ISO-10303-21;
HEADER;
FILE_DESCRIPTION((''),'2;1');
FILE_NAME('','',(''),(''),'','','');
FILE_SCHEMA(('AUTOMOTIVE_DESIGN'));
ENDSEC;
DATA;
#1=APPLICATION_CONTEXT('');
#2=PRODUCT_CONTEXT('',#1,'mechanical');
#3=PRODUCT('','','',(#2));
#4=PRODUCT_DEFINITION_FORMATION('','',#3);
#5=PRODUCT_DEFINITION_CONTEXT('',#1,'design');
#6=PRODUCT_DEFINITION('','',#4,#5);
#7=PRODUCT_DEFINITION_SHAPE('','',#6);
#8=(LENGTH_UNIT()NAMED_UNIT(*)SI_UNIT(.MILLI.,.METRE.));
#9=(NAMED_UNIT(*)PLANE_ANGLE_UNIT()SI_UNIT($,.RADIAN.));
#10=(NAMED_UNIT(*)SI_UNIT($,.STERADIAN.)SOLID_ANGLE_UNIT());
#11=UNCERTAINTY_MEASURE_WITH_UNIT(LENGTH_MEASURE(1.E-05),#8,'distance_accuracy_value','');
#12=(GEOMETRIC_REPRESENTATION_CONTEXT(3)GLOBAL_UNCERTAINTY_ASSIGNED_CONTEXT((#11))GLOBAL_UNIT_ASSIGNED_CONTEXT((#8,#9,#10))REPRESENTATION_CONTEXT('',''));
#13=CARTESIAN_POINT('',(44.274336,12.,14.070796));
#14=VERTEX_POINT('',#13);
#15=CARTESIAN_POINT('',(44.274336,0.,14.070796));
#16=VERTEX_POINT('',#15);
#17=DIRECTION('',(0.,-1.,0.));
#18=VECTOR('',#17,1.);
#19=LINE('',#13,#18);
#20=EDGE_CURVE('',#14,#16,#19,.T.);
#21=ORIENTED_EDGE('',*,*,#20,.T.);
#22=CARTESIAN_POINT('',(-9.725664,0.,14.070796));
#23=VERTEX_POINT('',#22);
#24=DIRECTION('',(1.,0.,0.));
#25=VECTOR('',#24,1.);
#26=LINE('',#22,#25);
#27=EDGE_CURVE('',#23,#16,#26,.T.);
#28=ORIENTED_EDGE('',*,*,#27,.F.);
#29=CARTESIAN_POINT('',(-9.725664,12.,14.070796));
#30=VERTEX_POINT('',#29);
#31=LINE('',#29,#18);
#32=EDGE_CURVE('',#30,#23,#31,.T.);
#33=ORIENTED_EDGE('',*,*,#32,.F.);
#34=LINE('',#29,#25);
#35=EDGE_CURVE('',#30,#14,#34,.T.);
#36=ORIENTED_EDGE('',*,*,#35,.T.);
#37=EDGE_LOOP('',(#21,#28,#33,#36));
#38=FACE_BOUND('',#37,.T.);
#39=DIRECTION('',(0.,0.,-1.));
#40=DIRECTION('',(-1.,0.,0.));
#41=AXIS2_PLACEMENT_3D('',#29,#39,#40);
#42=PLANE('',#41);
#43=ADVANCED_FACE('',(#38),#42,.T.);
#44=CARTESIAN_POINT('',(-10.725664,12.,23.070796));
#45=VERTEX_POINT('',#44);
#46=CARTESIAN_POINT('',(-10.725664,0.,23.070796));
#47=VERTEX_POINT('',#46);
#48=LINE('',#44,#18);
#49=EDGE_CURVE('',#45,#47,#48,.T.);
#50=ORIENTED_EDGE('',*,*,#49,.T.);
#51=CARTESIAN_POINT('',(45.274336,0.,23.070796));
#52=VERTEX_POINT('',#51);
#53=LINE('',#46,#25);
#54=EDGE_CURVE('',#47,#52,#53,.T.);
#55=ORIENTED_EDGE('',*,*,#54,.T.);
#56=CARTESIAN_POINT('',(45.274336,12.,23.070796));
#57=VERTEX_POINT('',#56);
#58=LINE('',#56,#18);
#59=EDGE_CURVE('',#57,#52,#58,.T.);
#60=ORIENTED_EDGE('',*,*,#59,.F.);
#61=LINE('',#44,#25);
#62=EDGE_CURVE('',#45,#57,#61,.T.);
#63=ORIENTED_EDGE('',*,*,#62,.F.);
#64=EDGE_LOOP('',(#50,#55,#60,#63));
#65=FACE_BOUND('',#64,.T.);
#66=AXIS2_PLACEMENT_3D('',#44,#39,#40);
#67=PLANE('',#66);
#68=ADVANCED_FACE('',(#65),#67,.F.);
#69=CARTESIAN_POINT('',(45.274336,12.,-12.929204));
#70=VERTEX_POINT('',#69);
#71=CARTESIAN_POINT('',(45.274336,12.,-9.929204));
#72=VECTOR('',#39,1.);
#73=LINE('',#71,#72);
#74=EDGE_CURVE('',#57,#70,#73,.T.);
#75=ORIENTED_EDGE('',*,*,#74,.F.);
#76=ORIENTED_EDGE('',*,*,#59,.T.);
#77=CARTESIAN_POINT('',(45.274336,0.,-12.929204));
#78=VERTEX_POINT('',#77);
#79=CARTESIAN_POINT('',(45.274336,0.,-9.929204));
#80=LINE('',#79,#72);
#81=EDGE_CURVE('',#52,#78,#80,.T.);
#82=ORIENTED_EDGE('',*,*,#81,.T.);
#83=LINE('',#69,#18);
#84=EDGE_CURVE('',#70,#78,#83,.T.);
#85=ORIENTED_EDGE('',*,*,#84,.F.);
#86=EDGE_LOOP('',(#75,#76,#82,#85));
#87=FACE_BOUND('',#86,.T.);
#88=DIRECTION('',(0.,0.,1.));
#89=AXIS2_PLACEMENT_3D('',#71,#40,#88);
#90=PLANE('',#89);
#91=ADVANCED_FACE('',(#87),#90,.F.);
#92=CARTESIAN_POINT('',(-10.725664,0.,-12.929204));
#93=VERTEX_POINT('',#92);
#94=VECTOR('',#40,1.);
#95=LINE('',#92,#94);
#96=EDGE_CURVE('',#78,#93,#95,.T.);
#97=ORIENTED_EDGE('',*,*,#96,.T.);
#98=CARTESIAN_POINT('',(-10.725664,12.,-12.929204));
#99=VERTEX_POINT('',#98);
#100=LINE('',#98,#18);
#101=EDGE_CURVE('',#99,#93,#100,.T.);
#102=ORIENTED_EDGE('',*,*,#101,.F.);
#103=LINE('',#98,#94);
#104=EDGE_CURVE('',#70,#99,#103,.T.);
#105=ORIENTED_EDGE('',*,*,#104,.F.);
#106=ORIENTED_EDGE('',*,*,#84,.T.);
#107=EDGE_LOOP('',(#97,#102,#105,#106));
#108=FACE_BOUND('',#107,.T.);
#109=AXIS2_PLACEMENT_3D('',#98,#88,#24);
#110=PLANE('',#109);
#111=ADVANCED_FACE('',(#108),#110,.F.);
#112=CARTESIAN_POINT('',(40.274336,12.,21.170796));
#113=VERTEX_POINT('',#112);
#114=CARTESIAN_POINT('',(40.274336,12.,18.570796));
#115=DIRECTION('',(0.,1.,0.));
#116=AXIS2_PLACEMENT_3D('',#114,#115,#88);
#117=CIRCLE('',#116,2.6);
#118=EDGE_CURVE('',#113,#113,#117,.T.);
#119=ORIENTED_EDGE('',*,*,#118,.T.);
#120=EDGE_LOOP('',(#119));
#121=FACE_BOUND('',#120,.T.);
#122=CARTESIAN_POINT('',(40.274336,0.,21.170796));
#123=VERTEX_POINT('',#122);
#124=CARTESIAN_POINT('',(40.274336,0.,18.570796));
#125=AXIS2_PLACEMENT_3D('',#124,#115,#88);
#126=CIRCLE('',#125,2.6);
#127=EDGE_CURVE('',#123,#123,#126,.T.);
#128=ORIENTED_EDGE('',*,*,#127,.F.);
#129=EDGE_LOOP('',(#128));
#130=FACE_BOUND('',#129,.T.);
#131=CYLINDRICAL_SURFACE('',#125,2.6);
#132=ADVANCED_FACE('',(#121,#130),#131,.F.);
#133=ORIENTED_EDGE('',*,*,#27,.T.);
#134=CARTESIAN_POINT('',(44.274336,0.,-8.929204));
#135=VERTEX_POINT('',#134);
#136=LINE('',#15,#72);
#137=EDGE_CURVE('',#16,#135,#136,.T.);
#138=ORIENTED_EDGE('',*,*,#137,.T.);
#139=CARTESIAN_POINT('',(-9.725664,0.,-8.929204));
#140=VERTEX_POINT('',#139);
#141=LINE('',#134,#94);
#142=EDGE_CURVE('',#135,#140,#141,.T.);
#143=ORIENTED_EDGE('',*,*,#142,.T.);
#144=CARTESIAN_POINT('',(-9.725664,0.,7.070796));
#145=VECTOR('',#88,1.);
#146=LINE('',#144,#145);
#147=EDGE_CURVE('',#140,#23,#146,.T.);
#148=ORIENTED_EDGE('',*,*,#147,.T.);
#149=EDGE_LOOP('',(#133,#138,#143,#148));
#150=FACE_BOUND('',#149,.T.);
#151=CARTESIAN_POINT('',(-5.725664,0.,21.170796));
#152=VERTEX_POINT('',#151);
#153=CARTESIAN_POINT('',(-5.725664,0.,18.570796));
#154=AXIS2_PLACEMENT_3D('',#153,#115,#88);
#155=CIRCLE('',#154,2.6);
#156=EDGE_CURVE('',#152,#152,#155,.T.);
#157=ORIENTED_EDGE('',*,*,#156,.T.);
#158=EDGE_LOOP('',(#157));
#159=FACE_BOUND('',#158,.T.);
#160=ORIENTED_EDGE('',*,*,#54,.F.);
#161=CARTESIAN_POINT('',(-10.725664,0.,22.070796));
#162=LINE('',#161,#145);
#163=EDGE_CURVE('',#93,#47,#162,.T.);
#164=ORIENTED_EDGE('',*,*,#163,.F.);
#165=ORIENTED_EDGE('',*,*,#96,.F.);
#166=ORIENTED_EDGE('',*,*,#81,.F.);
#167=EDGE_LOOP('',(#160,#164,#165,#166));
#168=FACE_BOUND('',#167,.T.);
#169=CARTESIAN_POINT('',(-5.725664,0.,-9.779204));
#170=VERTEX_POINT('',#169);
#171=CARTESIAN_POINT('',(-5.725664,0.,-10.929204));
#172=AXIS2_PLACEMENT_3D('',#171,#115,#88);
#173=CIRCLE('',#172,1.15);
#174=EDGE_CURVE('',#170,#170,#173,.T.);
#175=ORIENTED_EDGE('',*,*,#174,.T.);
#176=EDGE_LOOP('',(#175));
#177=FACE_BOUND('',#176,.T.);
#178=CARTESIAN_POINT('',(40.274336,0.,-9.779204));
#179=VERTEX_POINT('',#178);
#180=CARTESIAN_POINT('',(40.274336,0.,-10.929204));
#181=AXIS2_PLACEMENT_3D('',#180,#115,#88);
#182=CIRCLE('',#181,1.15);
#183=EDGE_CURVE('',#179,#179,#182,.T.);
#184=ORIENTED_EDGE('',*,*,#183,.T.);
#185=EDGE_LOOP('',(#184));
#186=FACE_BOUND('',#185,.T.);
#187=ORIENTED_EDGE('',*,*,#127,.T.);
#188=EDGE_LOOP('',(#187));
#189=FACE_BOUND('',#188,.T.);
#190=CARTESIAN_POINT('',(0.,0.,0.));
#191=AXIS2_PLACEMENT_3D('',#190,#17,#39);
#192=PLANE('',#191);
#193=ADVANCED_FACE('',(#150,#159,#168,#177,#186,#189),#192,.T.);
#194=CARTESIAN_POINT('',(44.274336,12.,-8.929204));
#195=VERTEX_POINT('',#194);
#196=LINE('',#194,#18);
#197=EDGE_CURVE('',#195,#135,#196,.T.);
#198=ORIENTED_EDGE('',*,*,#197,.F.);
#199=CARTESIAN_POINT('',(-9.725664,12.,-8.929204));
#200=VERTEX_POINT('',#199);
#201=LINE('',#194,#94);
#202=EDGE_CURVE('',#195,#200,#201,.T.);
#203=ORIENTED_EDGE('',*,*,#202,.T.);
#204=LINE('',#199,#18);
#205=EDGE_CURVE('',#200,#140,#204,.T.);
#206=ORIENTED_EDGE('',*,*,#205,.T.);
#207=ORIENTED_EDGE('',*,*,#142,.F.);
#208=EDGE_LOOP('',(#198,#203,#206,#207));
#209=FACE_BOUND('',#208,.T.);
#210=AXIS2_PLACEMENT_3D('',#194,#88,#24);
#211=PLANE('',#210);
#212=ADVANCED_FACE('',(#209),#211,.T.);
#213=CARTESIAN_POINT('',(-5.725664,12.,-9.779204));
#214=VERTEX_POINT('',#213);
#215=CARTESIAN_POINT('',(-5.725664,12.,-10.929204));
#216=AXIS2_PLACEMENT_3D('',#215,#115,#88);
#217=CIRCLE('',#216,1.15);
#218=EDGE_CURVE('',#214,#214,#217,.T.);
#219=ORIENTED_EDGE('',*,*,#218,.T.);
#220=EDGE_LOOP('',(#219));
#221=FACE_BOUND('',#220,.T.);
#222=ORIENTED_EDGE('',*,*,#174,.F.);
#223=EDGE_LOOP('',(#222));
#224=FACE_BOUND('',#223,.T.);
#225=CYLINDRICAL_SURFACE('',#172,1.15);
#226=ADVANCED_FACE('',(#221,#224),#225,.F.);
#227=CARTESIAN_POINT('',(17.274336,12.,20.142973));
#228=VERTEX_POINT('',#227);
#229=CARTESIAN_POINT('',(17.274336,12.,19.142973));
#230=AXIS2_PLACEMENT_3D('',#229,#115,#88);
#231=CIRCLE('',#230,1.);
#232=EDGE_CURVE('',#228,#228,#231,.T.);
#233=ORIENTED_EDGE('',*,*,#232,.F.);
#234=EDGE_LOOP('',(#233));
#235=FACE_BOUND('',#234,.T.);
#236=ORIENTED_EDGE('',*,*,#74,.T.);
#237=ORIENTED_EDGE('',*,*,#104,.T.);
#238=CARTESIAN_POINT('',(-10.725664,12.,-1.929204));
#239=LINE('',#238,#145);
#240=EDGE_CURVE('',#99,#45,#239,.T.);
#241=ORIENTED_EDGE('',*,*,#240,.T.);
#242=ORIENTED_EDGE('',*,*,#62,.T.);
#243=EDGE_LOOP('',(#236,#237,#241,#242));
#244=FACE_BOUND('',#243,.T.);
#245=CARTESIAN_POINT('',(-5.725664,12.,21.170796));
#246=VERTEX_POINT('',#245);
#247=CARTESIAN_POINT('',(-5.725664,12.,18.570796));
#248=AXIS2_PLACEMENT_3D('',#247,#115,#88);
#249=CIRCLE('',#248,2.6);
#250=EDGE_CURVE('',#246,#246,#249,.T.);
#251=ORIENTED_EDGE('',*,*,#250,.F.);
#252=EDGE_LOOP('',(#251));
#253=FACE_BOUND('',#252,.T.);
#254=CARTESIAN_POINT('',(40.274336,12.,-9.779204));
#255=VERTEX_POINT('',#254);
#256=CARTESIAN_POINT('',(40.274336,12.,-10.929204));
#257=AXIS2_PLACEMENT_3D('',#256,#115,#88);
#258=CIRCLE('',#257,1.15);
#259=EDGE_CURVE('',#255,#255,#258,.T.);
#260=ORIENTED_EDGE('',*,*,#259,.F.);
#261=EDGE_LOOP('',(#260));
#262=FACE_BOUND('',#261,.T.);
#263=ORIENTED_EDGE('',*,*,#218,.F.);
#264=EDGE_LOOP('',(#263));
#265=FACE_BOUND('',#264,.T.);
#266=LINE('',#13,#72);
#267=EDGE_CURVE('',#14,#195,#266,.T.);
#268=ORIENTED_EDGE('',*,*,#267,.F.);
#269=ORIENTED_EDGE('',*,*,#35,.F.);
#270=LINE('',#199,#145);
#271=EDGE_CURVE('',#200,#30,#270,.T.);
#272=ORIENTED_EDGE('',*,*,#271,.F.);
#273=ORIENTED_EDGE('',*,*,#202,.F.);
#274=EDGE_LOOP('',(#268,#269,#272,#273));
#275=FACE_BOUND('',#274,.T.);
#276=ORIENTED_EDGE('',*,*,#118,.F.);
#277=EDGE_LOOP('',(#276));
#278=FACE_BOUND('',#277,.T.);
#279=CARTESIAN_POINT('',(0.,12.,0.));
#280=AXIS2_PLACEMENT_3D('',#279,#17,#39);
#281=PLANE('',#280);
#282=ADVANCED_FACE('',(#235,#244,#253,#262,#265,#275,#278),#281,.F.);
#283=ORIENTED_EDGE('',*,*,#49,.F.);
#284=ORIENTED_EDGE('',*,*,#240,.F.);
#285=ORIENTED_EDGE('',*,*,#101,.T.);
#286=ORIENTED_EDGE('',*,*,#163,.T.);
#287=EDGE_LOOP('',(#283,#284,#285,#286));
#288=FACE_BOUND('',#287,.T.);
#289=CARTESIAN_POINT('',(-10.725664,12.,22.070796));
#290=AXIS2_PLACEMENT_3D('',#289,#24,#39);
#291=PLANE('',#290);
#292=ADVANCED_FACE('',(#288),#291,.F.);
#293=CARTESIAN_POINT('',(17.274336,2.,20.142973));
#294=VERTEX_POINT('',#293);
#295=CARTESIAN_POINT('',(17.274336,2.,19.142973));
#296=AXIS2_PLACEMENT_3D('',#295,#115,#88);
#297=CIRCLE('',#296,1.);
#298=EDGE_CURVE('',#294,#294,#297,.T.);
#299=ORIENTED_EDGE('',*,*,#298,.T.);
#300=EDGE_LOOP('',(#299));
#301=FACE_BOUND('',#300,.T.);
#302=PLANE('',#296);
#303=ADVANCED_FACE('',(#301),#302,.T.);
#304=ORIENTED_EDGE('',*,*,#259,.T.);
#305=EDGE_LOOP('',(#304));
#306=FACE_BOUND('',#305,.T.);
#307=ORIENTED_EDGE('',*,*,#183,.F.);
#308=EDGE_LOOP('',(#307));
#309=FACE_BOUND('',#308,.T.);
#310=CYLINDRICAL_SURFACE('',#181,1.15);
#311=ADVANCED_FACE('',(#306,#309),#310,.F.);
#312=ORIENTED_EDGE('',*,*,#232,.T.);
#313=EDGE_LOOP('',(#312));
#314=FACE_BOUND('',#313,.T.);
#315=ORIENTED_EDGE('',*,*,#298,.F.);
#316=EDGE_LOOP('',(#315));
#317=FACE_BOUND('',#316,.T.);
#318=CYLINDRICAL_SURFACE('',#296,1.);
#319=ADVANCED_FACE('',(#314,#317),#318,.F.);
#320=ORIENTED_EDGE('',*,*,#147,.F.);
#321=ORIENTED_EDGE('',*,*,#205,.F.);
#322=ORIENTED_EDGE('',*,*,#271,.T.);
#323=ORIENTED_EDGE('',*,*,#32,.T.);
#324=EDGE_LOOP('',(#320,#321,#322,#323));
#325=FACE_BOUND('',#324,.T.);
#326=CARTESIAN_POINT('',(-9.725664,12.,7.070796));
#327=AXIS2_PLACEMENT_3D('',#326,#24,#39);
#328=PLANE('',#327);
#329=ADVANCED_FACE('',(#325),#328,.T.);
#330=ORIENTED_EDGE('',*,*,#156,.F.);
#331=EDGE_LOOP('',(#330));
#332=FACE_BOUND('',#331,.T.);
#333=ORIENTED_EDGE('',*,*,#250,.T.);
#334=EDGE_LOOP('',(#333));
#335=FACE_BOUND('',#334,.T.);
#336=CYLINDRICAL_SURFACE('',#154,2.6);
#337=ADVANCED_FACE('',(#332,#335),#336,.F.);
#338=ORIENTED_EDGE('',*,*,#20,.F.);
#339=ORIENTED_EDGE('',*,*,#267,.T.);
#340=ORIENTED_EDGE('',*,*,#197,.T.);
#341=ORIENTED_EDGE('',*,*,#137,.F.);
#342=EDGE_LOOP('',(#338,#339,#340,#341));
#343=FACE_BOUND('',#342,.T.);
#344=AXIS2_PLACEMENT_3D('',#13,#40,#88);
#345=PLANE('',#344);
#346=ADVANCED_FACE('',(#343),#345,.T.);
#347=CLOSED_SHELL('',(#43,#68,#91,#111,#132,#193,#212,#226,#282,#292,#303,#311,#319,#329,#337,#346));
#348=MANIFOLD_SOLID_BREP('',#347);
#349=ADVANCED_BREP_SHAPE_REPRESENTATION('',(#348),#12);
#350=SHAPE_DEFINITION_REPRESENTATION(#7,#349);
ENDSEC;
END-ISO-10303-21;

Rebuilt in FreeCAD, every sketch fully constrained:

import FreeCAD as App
import Part
import Sketcher
from FreeCAD import Vector


def add_polygon(sketch, points):
    """Adds a closed chain of lines whose ends are joined by coincident constraints."""
    first, n = sketch.GeometryCount, len(points)
    for a, b in zip(points, points[1:] + points[:1]):
        sketch.addGeometry(Part.LineSegment(App.Vector(*a, 0), App.Vector(*b, 0)), False)
    for i in range(n):
        sketch.addConstraint(Sketcher.Constraint("Coincident", first + i, 2, first + (i + 1) % n, 1))

doc = App.newDocument("Part")
params = doc.addObject("Spreadsheet::Sheet", "Params")
for row, (alias, value) in enumerate([
    ("sketch1_width", "56 mm"),
    ("sketch1_width2", "54 mm"),
    ("sketch1_height", "32 mm"),
    ("sketch1_height2", "23 mm"),
    ("pad1_length", "12 mm"),
    ("sketch2_width", "56 mm"),
    ("sketch2_height", "3 mm"),
    ("sketch2_height2", "1 mm"),
    ("pad2_length", "12 mm"),
    ("sketch3_diameter", "2.3 mm"),
    ("sketch3_diameter2", "5.2 mm"),
    ("sketch4_diameter", "2 mm"),
    ("pocket2_length", "10 mm"),
], start=1):
    params.set(f"A{row}", alias)
    params.set(f"B{row}", "=" + value)
    params.setAlias(f"B{row}", alias)

body = doc.addObject("PartDesign::Body", "Body")

# Sketch on XZ plane
sketch1 = body.newObject("Sketcher::SketchObject", "Sketch")
sketch1.AttachmentSupport = (doc.getObject("XZ_Plane"), [""])
sketch1.MapMode = "FlatFace"
add_polygon(sketch1, [(45, -10), (-11, -10), (-11, 22), (45, 22)])  # lines 0-3
add_polygon(sketch1, [(-10, -9), (44, -9), (44, 14), (-10, 14)])  # lines 4-7
sketch1.addConstraint([
    Sketcher.Constraint("Horizontal", 0),
    Sketcher.Constraint("Vertical", 1),
    Sketcher.Constraint("Horizontal", 2),
    Sketcher.Constraint("Vertical", 3),
    Sketcher.Constraint("Horizontal", 4),
    Sketcher.Constraint("Vertical", 5),
    Sketcher.Constraint("Horizontal", 6),
    Sketcher.Constraint("Vertical", 7),
    Sketcher.Constraint("DistanceX", 0, 2, 0, 1, 56.0),
    Sketcher.Constraint("DistanceX", 4, 1, 4, 2, 54.0),
    Sketcher.Constraint("DistanceY", 1, 1, 1, 2, 32.0),
    Sketcher.Constraint("DistanceY", 5, 1, 5, 2, 23.0),
    Sketcher.Constraint("DistanceX", 4, 2, 3, 2, 1.0),
    Sketcher.Constraint("DistanceY", 3, 2, 4, 2, 1.0),
    Sketcher.Constraint("DistanceX", 0, 2, -1, 1, 10.725664),
    Sketcher.Constraint("DistanceY", 0, 2, -1, 1, 9.929204),
])
sketch1.setExpression("Constraints[16]", "Params.sketch1_width")
sketch1.setExpression("Constraints[17]", "Params.sketch1_width2")
sketch1.setExpression("Constraints[18]", "Params.sketch1_height")
sketch1.setExpression("Constraints[19]", "Params.sketch1_height2")
pad1 = body.newObject("PartDesign::Pad", "Pad")
pad1.Profile = sketch1
pad1.setExpression("Length", "Params.pad1_length")
pad1.Reversed = True

# Sketch on XZ plane
sketch2 = body.newObject("Sketcher::SketchObject", "Sketch001")
sketch2.AttachmentSupport = (doc.getObject("XZ_Plane"), [""])
sketch2.MapMode = "FlatFace"
add_polygon(sketch2, [(-10.7, -12.9), (-10.7, -9.9), (45.3, -9.9), (45.3, -12.9)])  # lines 0-3
add_polygon(sketch2, [(-10.7, 22.1), (-10.7, 23.1), (45.3, 23.1), (45.3, 22.1)])  # lines 4-7
sketch2.addConstraint([
    Sketcher.Constraint("Vertical", 0),
    Sketcher.Constraint("Horizontal", 1),
    Sketcher.Constraint("Vertical", 2),
    Sketcher.Constraint("Horizontal", 3),
    Sketcher.Constraint("Vertical", 4),
    Sketcher.Constraint("Horizontal", 5),
    Sketcher.Constraint("Vertical", 6),
    Sketcher.Constraint("Horizontal", 7),
    Sketcher.Constraint("Vertical", 3, 2, 4, 2),
    Sketcher.Constraint("Vertical", 2, 2, 5, 2),
    Sketcher.Constraint("DistanceX", 1, 1, 1, 2, 56.0),
    Sketcher.Constraint("DistanceY", 0, 1, 0, 2, 3.0),
    Sketcher.Constraint("DistanceY", 4, 1, 4, 2, 1.0),
    Sketcher.Constraint("DistanceY", 0, 2, 4, 2, 33.0),
    Sketcher.Constraint("DistanceX", 0, 2, -1, 1, 10.725664),
    Sketcher.Constraint("DistanceY", 0, 2, -1, 1, 9.929204),
])
sketch2.setExpression("Constraints[18]", "Params.sketch2_width")
sketch2.setExpression("Constraints[19]", "Params.sketch2_height")
sketch2.setExpression("Constraints[20]", "Params.sketch2_height2")
pad2 = body.newObject("PartDesign::Pad", "Pad001")
pad2.Profile = sketch2
pad2.setExpression("Length", "Params.pad2_length")
pad2.Reversed = True

# Sketch on XZ plane
sketch3 = body.newObject("Sketcher::SketchObject", "Sketch002")
sketch3.AttachmentSupport = (doc.getObject("XZ_Plane"), [""])
sketch3.MapMode = "FlatFace"
sketch3.AttachmentOffset = App.Placement(Vector(0, 0, -12), App.Rotation())
sketch3.addGeometry([
    Part.Circle(Vector(-5.7, -10.9, 0), Vector(0, 0, 1), 1.1),
    Part.Circle(Vector(40.3, -10.9, 0), Vector(0, 0, 1), 1.1),
    Part.Circle(Vector(-5.7, 18.6, 0), Vector(0, 0, 1), 2.6),
    Part.Circle(Vector(40.3, 18.6, 0), Vector(0, 0, 1), 2.6),
], False)
sketch3.addConstraint([
    Sketcher.Constraint("Equal", 0, 1),
    Sketcher.Constraint("Equal", 2, 3),
    Sketcher.Constraint("Horizontal", 0, 3, 1, 3),
    Sketcher.Constraint("Horizontal", 2, 3, 3, 3),
    Sketcher.Constraint("Vertical", 0, 3, 2, 3),
    Sketcher.Constraint("Vertical", 1, 3, 3, 3),
    Sketcher.Constraint("Diameter", 0, 2.3),
    Sketcher.Constraint("Diameter", 2, 5.2),
    Sketcher.Constraint("DistanceX", 0, 3, 1, 3, 46.0),
    Sketcher.Constraint("DistanceY", 0, 3, 2, 3, 29.5),
    Sketcher.Constraint("DistanceX", 0, 3, -1, 1, 5.725664),
    Sketcher.Constraint("DistanceY", 0, 3, -1, 1, 10.929204),
])
sketch3.setExpression("Constraints[6]", "Params.sketch3_diameter")
sketch3.setExpression("Constraints[7]", "Params.sketch3_diameter2")
pocket1 = body.newObject("PartDesign::Pocket", "Pocket")
pocket1.Profile = sketch3
pocket1.Type = "ThroughAll"
pocket1.Reversed = True

# Sketch on XZ plane
sketch4 = body.newObject("Sketcher::SketchObject", "Sketch003")
sketch4.AttachmentSupport = (doc.getObject("XZ_Plane"), [""])
sketch4.MapMode = "FlatFace"
sketch4.AttachmentOffset = App.Placement(Vector(0, 0, -12), App.Rotation())
sketch4.addGeometry(Part.Circle(Vector(17.3, 19.1, 0), Vector(0, 0, 1), 1), False)
sketch4.addConstraint([
    Sketcher.Constraint("Diameter", 0, 2.0),
    Sketcher.Constraint("DistanceX", -1, 1, 0, 3, 17.274336),
    Sketcher.Constraint("DistanceY", -1, 1, 0, 3, 19.142973),
])
sketch4.setExpression("Constraints[0]", "Params.sketch4_diameter")
pocket2 = body.newObject("PartDesign::Pocket", "Pocket001")
pocket2.Profile = sketch4
pocket2.setExpression("Length", "Params.pocket2_length")
pocket2.Reversed = True

doc.recompute()
